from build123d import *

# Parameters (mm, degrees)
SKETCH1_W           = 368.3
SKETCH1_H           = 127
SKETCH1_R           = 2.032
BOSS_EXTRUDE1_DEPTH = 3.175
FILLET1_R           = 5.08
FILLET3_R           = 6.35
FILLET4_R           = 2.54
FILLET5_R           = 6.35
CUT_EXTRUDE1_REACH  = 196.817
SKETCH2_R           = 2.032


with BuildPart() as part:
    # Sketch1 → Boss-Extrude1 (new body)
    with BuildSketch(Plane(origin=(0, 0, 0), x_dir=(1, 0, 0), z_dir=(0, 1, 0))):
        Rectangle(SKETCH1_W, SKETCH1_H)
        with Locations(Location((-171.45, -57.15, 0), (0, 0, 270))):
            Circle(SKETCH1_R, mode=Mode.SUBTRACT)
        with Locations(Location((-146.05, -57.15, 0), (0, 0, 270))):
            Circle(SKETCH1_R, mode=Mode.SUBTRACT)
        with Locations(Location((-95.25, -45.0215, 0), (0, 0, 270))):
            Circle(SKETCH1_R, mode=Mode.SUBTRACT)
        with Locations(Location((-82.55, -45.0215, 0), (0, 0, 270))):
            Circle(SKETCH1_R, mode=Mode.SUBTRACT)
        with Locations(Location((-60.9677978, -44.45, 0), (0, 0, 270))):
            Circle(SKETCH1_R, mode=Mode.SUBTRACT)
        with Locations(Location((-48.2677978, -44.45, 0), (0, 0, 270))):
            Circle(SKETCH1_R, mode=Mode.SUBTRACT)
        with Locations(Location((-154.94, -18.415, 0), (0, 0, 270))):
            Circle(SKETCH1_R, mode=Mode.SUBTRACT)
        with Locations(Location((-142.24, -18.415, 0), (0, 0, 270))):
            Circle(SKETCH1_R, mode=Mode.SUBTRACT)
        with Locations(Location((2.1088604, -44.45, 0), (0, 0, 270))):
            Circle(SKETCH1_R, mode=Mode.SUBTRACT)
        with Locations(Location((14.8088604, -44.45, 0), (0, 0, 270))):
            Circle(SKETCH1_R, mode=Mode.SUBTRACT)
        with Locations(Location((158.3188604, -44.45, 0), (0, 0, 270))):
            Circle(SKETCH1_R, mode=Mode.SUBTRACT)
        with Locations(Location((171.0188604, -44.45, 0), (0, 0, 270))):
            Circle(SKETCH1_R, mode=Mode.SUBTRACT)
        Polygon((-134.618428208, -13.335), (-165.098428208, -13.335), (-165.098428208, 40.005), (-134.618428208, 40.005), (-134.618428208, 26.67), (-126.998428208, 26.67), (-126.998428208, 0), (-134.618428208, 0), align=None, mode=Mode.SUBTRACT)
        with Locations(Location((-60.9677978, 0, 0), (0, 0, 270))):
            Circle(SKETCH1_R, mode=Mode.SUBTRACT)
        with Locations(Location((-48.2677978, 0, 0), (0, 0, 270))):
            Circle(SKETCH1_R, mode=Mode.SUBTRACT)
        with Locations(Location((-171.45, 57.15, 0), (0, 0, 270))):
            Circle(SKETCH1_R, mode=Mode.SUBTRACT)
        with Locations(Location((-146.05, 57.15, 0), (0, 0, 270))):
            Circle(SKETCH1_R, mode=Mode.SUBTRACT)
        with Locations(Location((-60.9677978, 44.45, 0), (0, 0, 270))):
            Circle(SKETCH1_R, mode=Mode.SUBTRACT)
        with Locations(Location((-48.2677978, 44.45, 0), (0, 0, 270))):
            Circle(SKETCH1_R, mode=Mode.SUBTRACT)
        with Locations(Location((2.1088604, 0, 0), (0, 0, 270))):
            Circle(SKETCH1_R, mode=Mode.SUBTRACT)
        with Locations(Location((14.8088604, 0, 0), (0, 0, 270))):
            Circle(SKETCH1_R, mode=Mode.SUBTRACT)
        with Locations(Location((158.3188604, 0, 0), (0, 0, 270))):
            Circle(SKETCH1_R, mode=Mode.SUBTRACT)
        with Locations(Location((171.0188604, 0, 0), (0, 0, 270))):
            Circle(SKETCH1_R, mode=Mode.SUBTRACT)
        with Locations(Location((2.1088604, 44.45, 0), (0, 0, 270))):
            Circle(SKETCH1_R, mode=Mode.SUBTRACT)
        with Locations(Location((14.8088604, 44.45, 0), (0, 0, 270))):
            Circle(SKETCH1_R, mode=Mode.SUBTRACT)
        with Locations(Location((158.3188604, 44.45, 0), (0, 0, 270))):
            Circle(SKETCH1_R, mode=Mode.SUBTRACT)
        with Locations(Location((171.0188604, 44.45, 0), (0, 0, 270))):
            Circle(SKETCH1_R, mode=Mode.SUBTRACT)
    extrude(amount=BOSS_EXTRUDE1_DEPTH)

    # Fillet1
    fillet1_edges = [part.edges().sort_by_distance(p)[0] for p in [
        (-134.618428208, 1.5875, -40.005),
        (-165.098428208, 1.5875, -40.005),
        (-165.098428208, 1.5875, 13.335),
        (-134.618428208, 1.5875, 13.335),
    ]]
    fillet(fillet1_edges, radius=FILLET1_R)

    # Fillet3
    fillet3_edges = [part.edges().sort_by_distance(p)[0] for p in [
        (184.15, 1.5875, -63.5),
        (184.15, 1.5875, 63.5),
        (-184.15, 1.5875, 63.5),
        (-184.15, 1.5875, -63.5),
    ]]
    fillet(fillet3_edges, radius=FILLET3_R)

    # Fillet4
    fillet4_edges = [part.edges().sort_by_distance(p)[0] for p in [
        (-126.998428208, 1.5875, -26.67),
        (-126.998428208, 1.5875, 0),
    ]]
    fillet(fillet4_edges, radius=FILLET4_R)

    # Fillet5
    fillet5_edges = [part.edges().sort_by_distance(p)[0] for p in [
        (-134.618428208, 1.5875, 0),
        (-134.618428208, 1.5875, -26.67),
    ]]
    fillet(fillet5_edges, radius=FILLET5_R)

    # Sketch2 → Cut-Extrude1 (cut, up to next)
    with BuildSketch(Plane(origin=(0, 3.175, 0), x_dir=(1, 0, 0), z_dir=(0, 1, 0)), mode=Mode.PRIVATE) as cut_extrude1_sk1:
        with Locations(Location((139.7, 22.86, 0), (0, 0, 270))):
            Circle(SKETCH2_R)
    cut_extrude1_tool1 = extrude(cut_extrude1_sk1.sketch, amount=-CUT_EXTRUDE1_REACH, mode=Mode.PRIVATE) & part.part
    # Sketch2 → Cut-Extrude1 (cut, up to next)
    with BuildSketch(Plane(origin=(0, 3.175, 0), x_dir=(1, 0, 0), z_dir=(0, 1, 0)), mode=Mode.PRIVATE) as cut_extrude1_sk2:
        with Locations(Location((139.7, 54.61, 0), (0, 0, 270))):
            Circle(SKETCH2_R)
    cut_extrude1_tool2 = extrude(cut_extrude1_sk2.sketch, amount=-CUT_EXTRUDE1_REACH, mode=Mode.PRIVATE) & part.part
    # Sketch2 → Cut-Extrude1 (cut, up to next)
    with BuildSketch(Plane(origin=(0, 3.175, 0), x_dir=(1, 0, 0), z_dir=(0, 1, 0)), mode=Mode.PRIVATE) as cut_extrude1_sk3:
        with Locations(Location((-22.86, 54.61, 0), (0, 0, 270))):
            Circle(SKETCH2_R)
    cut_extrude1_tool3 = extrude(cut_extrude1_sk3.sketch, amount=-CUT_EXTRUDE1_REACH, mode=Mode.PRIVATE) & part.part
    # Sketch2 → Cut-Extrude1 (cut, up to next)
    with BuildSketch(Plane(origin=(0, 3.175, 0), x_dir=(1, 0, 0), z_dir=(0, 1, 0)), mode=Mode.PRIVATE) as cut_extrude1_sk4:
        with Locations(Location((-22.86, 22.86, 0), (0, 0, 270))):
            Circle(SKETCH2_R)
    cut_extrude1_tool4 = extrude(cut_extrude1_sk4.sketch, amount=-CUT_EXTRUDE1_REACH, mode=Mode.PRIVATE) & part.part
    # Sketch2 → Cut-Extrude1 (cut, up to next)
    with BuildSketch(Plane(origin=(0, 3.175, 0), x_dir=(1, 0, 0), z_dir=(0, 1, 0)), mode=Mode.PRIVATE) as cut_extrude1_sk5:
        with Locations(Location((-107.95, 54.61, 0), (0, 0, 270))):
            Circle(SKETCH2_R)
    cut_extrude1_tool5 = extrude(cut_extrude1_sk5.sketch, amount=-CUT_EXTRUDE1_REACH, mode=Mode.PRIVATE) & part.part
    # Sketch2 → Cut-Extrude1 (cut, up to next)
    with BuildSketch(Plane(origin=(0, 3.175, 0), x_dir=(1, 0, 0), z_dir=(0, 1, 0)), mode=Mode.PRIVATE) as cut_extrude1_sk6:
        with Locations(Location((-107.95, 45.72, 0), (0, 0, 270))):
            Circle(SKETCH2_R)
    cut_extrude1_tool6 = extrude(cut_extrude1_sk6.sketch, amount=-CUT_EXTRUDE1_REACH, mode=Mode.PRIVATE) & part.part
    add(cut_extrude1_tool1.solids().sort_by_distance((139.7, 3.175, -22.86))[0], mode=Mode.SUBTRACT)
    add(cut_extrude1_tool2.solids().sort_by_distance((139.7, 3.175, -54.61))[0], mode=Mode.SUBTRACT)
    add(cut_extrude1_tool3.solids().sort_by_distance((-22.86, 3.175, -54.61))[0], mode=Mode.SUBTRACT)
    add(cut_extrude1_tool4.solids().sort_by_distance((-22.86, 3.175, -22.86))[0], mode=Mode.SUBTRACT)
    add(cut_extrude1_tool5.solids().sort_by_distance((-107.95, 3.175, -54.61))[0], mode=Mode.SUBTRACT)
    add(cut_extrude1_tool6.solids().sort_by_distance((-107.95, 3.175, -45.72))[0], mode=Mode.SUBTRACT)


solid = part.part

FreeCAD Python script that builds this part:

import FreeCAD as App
import Part
import Sketcher
Q = App.Units.Quantity


def edges_at(feature, points):
    """Names of the edges that pass closest to the given points."""
    edges = feature.Shape.Edges
    near = lambda p: min(range(len(edges)), key=lambda i: edges[i].distToShape(Part.Vertex(*p))[0])
    return sorted({f"Edge{near(p) + 1}" for p in points})


def add_polygon(sketch, points):
    """Adds a closed chain of lines whose ends are joined by coincident constraints."""
    first, n = sketch.GeometryCount, len(points)
    for a, b in zip(points, points[1:] + points[:1]):
        sketch.addGeometry(Part.LineSegment(App.Vector(*a, 0), App.Vector(*b, 0)), False)
    for i in range(n):
        sketch.addConstraint(Sketcher.Constraint("Coincident", first + i, 2, first + (i + 1) % n, 1))

doc = App.newDocument("Part")
body = doc.addObject("PartDesign::Body", "Body")

sketch1 = body.newObject("Sketcher::SketchObject", "Sketch")
sketch1.AttachmentSupport = (doc.getObject("XZ_Plane"), [""])
sketch1.MapMode = "FlatFace"
add_polygon(sketch1, [(-184.15, -63.5), (-184.15, 63.5), (184.15, 63.5), (184.15, -63.5)])
sketch1.addGeometry(Part.Circle(App.Vector(-171.45, 57.15, 0), App.Vector(0, 0, 1), 2.032), False)
sketch1.addGeometry(Part.Circle(App.Vector(-146.05, 57.15, 0), App.Vector(0, 0, 1), 2.032), False)
sketch1.addGeometry(Part.Circle(App.Vector(-95.25, 45.0215, 0), App.Vector(0, 0, 1), 2.032), False)
sketch1.addGeometry(Part.Circle(App.Vector(-82.55, 45.0215, 0), App.Vector(0, 0, 1), 2.032), False)
sketch1.addGeometry(Part.Circle(App.Vector(-60.967798, 44.45, 0), App.Vector(0, 0, 1), 2.032), False)
sketch1.addGeometry(Part.Circle(App.Vector(-48.267798, 44.45, 0), App.Vector(0, 0, 1), 2.032), False)
sketch1.addGeometry(Part.Circle(App.Vector(-154.94, 18.415, 0), App.Vector(0, 0, 1), 2.032), False)
sketch1.addGeometry(Part.Circle(App.Vector(-142.24, 18.415, 0), App.Vector(0, 0, 1), 2.032), False)
sketch1.addGeometry(Part.Circle(App.Vector(2.10886, 44.45, 0), App.Vector(0, 0, 1), 2.032), False)
sketch1.addGeometry(Part.Circle(App.Vector(14.80886, 44.45, 0), App.Vector(0, 0, 1), 2.032), False)
sketch1.addGeometry(Part.Circle(App.Vector(158.31886, 44.45, 0), App.Vector(0, 0, 1), 2.032), False)
sketch1.addGeometry(Part.Circle(App.Vector(171.01886, 44.45, 0), App.Vector(0, 0, 1), 2.032), False)
add_polygon(sketch1, [(-134.618428, 0), (-134.618428, 13.335), (-165.098428, 13.335), (-165.098428, -40.005), (-134.618428, -40.005), (-134.618428, -26.67), (-126.998428, -26.67), (-126.998428, 0)])
sketch1.addGeometry(Part.Circle(App.Vector(-60.967798, 0, 0), App.Vector(0, 0, 1), 2.032), False)
sketch1.addGeometry(Part.Circle(App.Vector(-48.267798, 0, 0), App.Vector(0, 0, 1), 2.032), False)
sketch1.addGeometry(Part.Circle(App.Vector(-171.45, -57.15, 0), App.Vector(0, 0, 1), 2.032), False)
sketch1.addGeometry(Part.Circle(App.Vector(-146.05, -57.15, 0), App.Vector(0, 0, 1), 2.032), False)
sketch1.addGeometry(Part.Circle(App.Vector(-60.967798, -44.45, 0), App.Vector(0, 0, 1), 2.032), False)
sketch1.addGeometry(Part.Circle(App.Vector(-48.267798, -44.45, 0), App.Vector(0, 0, 1), 2.032), False)
sketch1.addGeometry(Part.Circle(App.Vector(2.10886, 0, 0), App.Vector(0, 0, 1), 2.032), False)
sketch1.addGeometry(Part.Circle(App.Vector(14.80886, 0, 0), App.Vector(0, 0, 1), 2.032), False)
sketch1.addGeometry(Part.Circle(App.Vector(158.31886, 0, 0), App.Vector(0, 0, 1), 2.032), False)
sketch1.addGeometry(Part.Circle(App.Vector(171.01886, 0, 0), App.Vector(0, 0, 1), 2.032), False)
sketch1.addGeometry(Part.Circle(App.Vector(2.10886, -44.45, 0), App.Vector(0, 0, 1), 2.032), False)
sketch1.addGeometry(Part.Circle(App.Vector(14.80886, -44.45, 0), App.Vector(0, 0, 1), 2.032), False)
sketch1.addGeometry(Part.Circle(App.Vector(158.31886, -44.45, 0), App.Vector(0, 0, 1), 2.032), False)
sketch1.addGeometry(Part.Circle(App.Vector(171.01886, -44.45, 0), App.Vector(0, 0, 1), 2.032), False)
sketch1.addConstraint([
    Sketcher.Constraint("Vertical", 0),
    Sketcher.Constraint("Horizontal", 1),
    Sketcher.Constraint("Vertical", 2),
    Sketcher.Constraint("Horizontal", 3),
    Sketcher.Constraint("Vertical", 16),
    Sketcher.Constraint("Horizontal", 17),
    Sketcher.Constraint("Vertical", 18),
    Sketcher.Constraint("Horizontal", 19),
    Sketcher.Constraint("Vertical", 20),
    Sketcher.Constraint("Horizontal", 21),
    Sketcher.Constraint("Vertical", 22),
    Sketcher.Constraint("Horizontal", 23),
    Sketcher.Constraint("Equal", 4, 5),
    Sketcher.Constraint("Equal", 5, 6),
    Sketcher.Constraint("Equal", 6, 7),
    Sketcher.Constraint("Equal", 7, 8),
    Sketcher.Constraint("Equal", 8, 9),
    Sketcher.Constraint("Equal", 9, 10),
    Sketcher.Constraint("Equal", 10, 11),
    Sketcher.Constraint("Equal", 11, 12),
    Sketcher.Constraint("Equal", 12, 13),
    Sketcher.Constraint("Equal", 13, 14),
    Sketcher.Constraint("Equal", 14, 15),
    Sketcher.Constraint("Equal", 15, 24),
    Sketcher.Constraint("Equal", 24, 25),
    Sketcher.Constraint("Equal", 25, 26),
    Sketcher.Constraint("Equal", 26, 27),
    Sketcher.Constraint("Equal", 27, 28),
    Sketcher.Constraint("Equal", 28, 29),
    Sketcher.Constraint("Equal", 29, 30),
    Sketcher.Constraint("Equal", 30, 31),
    Sketcher.Constraint("Equal", 31, 32),
    Sketcher.Constraint("Equal", 32, 33),
    Sketcher.Constraint("Equal", 33, 34),
    Sketcher.Constraint("Equal", 34, 35),
    Sketcher.Constraint("Equal", 35, 36),
    Sketcher.Constraint("Equal", 36, 37),
    Sketcher.Constraint("Symmetric", 0, 2, 2, 2, -1, 1),
    Sketcher.Constraint("Symmetric", 4, 3, 26, 3, -1),
    Sketcher.Constraint("Symmetric", 5, 3, 27, 3, -1),
    Sketcher.Constraint("Symmetric", 8, 3, 28, 3, -1),
    Sketcher.Constraint("Symmetric", 9, 3, 29, 3, -1),
    Sketcher.Constraint("Symmetric", 12, 3, 34, 3, -1),
    Sketcher.Constraint("Symmetric", 13, 3, 35, 3, -1),
    Sketcher.Constraint("Symmetric", 14, 3, 36, 3, -1),
    Sketcher.Constraint("Symmetric", 15, 3, 37, 3, -1),
    Sketcher.Constraint("PointOnObject", 24, 3, -1),
    Sketcher.Constraint("PointOnObject", 25, 3, -1),
    Sketcher.Constraint("PointOnObject", 30, 3, -1),
    Sketcher.Constraint("PointOnObject", 31, 3, -1),
    Sketcher.Constraint("PointOnObject", 32, 3, -1),
    Sketcher.Constraint("PointOnObject", 33, 3, -1),
    Sketcher.Constraint("PointOnObject", 22, 2, -1),
    Sketcher.Constraint("Horizontal", 4, 3, 5, 3),
    Sketcher.Constraint("Horizontal", 6, 3, 7, 3),
    Sketcher.Constraint("Horizontal", 8, 3, 9, 3),
    Sketcher.Constraint("Horizontal", 10, 3, 11, 3),
    Sketcher.Constraint("Horizontal", 9, 3, 12, 3),
    Sketcher.Constraint("Horizontal", 12, 3, 13, 3),
    Sketcher.Constraint("Horizontal", 13, 3, 14, 3),
    Sketcher.Constraint("Horizontal", 14, 3, 15, 3),
    Sketcher.Constraint("Vertical", 8, 3, 24, 3),
    Sketcher.Constraint("Vertical", 9, 3, 25, 3),
    Sketcher.Constraint("Vertical", 12, 3, 30, 3),
    Sketcher.Constraint("Vertical", 13, 3, 31, 3),
    Sketcher.Constraint("Vertical", 14, 3, 32, 3),
    Sketcher.Constraint("Vertical", 15, 3, 33, 3),
    Sketcher.Constraint("Vertical", 16, 2, 19, 2),
    Sketcher.Constraint("Equal", 16, 20),
    Sketcher.Constraint("Diameter", 4, Q("0.16 in")),
    Sketcher.Constraint("DistanceY", 0, 1, 0, 2, Q("5 in")),
    Sketcher.Constraint("DistanceX", 1, 1, 1, 2, Q("14.5 in")),
    Sketcher.Constraint("DistanceX", 17, 2, 17, 1, Q("1.2 in")),
    Sketcher.Constraint("DistanceX", 21, 1, 21, 2, Q("0.3 in")),
    Sketcher.Constraint("DistanceY", 18, 2, 18, 1, Q("2.1 in")),
    Sketcher.Constraint("DistanceX", 4, 3, 5, 3, Q("1 in")),
    Sketcher.Constraint("DistanceX", 5, 3, 6, 3, Q("2 in")),
    Sketcher.Constraint("DistanceY", 22, 1, 22, 2, Q("1.05 in")),
    Sketcher.Constraint("DistanceX", 10, 3, -1, 1, Q("6.1 in")),
    Sketcher.Constraint("DistanceX", 11, 3, -1, 1, Q("5.6 in")),
    Sketcher.Constraint("DistanceX", 6, 3, 7, 3, Q("0.5 in")),
    Sketcher.Constraint("DistanceY", 8, 3, 5, 3, Q("0.5 in")),
    Sketcher.Constraint("DistanceX", 8, 3, 9, 3, Q("0.5 in")),
    Sketcher.Constraint("DistanceX", 12, 3, 13, 3, Q("0.5 in")),
    Sketcher.Constraint("DistanceX", 14, 3, 15, 3, Q("0.5 in")),
    Sketcher.Constraint("DistanceY", 26, 3, 4, 3, Q("4.5 in")),
    Sketcher.Constraint("DistanceX", 0, 2, 4, 3, Q("0.5 in")),
    Sketcher.Constraint("DistanceY", 16, 2, 11, 3, Q("0.2 in")),
    Sketcher.Constraint("DistanceX", 13, 3, 14, 3, Q("5.65 in")),
    Sketcher.Constraint("DistanceY", -1, 1, 6, 3, Q("1.7725 in")),
    Sketcher.Constraint("DistanceX", -1, 1, 12, 3, Q("2.10886 mm")),
    Sketcher.Constraint("DistanceX", 16, 2, -1, 1, Q("134.618428 mm")),
    Sketcher.Constraint("DistanceX", 9, 3, 12, 3, Q("50.376658 mm")),
])
pad1 = body.newObject("PartDesign::Pad", "Pad")
pad1.Profile = sketch1
pad1.Length = Q("0.125 in")
pad1.Reversed = True
doc.recompute()

fillet = body.newObject("PartDesign::Fillet", "Fillet")
fillet.Base = (pad1, edges_at(pad1, [
    (-134.618, 1.587, -40.005),
    (-165.098, 1.587, -40.005),
    (-165.098, 1.587, 13.335),
    (-134.618, 1.587, 13.335),
]))
fillet.Radius = Q("0.2 in")
doc.recompute()

fillet2 = body.newObject("PartDesign::Fillet", "Fillet001")
fillet2.Base = (fillet, edges_at(fillet, [
    (184.15, 1.587, -63.5),
    (184.15, 1.587, 63.5),
    (-184.15, 1.587, 63.5),
    (-184.15, 1.587, -63.5),
]))
fillet2.Radius = Q("0.25 in")
doc.recompute()

fillet3 = body.newObject("PartDesign::Fillet", "Fillet002")
fillet3.Base = (fillet2, edges_at(fillet2, [(-126.998, 1.587, -26.67), (-126.998, 1.587, 0)]))
fillet3.Radius = Q("0.1 in")
doc.recompute()

fillet4 = body.newObject("PartDesign::Fillet", "Fillet003")
fillet4.Base = (fillet3, edges_at(fillet3, [(-134.618, 1.587, 0), (-134.618, 1.587, -26.67)]))
fillet4.Radius = Q("0.25 in")

sketch2 = body.newObject("Sketcher::SketchObject", "Sketch001")
sketch2.AttachmentSupport = (doc.getObject("XZ_Plane"), [""])
sketch2.MapMode = "FlatFace"
sketch2.AttachmentOffset = App.Placement(App.Vector(0, 0, -0.125 * 25.4), App.Rotation())
sketch2.addGeometry(Part.Circle(App.Vector(139.7, -22.86, 0), App.Vector(0, 0, 1), 2.032), False)
sketch2.addConstraint([
    Sketcher.Constraint("Diameter", 0, Q("0.16 in")),
    Sketcher.Constraint("DistanceX", -1, 1, 0, 3, Q("5.5 in")),
    Sketcher.Constraint("DistanceY", 0, 3, -1, 1, Q("0.9 in")),
])
pocket1 = body.newObject("PartDesign::Pocket", "Pocket")
pocket1.Profile = sketch2
pocket1.Type = "UpToFirst"
pocket1.Reversed = True

sketch3 = body.newObject("Sketcher::SketchObject", "Sketch002")
sketch3.AttachmentSupport = (doc.getObject("XZ_Plane"), [""])
sketch3.MapMode = "FlatFace"
sketch3.AttachmentOffset = App.Placement(App.Vector(0, 0, -0.125 * 25.4), App.Rotation())
sketch3.addGeometry(Part.Circle(App.Vector(139.7, -54.61, 0), App.Vector(0, 0, 1), 2.032), False)
sketch3.addConstraint([
    Sketcher.Constraint("Diameter", 0, Q("0.16 in")),
    Sketcher.Constraint("DistanceX", -1, 1, 0, 3, Q("5.5 in")),
    Sketcher.Constraint("DistanceY", 0, 3, -1, 1, Q("2.15 in")),
])
pocket2 = body.newObject("PartDesign::Pocket", "Pocket001")
pocket2.Profile = sketch3
pocket2.Type = "UpToFirst"
pocket2.Reversed = True

sketch4 = body.newObject("Sketcher::SketchObject", "Sketch003")
sketch4.AttachmentSupport = (doc.getObject("XZ_Plane"), [""])
sketch4.MapMode = "FlatFace"
sketch4.AttachmentOffset = App.Placement(App.Vector(0, 0, -0.125 * 25.4), App.Rotation())
sketch4.addGeometry(Part.Circle(App.Vector(-22.86, -54.61, 0), App.Vector(0, 0, 1), 2.032), False)
sketch4.addConstraint([
    Sketcher.Constraint("Diameter", 0, Q("0.16 in")),
    Sketcher.Constraint("DistanceX", 0, 3, -1, 1, Q("0.9 in")),
    Sketcher.Constraint("DistanceY", 0, 3, -1, 1, Q("2.15 in")),
])
pocket3 = body.newObject("PartDesign::Pocket", "Pocket002")
pocket3.Profile = sketch4
pocket3.Type = "UpToFirst"
pocket3.Reversed = True

sketch5 = body.newObject("Sketcher::SketchObject", "Sketch004")
sketch5.AttachmentSupport = (doc.getObject("XZ_Plane"), [""])
sketch5.MapMode = "FlatFace"
sketch5.AttachmentOffset = App.Placement(App.Vector(0, 0, -0.125 * 25.4), App.Rotation())
sketch5.addGeometry(Part.Circle(App.Vector(-22.86, -22.86, 0), App.Vector(0, 0, 1), 2.032), False)
sketch5.addConstraint([
    Sketcher.Constraint("Diameter", 0, Q("0.16 in")),
    Sketcher.Constraint("DistanceX", 0, 3, -1, 1, Q("0.9 in")),
    Sketcher.Constraint("DistanceY", 0, 3, -1, 1, Q("0.9 in")),
])
pocket4 = body.newObject("PartDesign::Pocket", "Pocket003")
pocket4.Profile = sketch5
pocket4.Type = "UpToFirst"
pocket4.Reversed = True

sketch6 = body.newObject("Sketcher::SketchObject", "Sketch005")
sketch6.AttachmentSupport = (doc.getObject("XZ_Plane"), [""])
sketch6.MapMode = "FlatFace"
sketch6.AttachmentOffset = App.Placement(App.Vector(0, 0, -0.125 * 25.4), App.Rotation())
sketch6.addGeometry(Part.Circle(App.Vector(-107.95, -54.61, 0), App.Vector(0, 0, 1), 2.032), False)
sketch6.addConstraint([
    Sketcher.Constraint("Diameter", 0, Q("0.16 in")),
    Sketcher.Constraint("DistanceX", 0, 3, -1, 1, Q("4.25 in")),
    Sketcher.Constraint("DistanceY", 0, 3, -1, 1, Q("2.15 in")),
])
pocket5 = body.newObject("PartDesign::Pocket", "Pocket004")
pocket5.Profile = sketch6
pocket5.Type = "UpToFirst"
pocket5.Reversed = True

sketch7 = body.newObject("Sketcher::SketchObject", "Sketch006")
sketch7.AttachmentSupport = (doc.getObject("XZ_Plane"), [""])
sketch7.MapMode = "FlatFace"
sketch7.AttachmentOffset = App.Placement(App.Vector(0, 0, -0.125 * 25.4), App.Rotation())
sketch7.addGeometry(Part.Circle(App.Vector(-107.95, -45.72, 0), App.Vector(0, 0, 1), 2.032), False)
sketch7.addConstraint([
    Sketcher.Constraint("Diameter", 0, Q("0.16 in")),
    Sketcher.Constraint("DistanceY", 0, 3, -1, 1, Q("1.8 in")),
    Sketcher.Constraint("DistanceX", 0, 3, -1, 1, Q("4.25 in")),
])
pocket6 = body.newObject("PartDesign::Pocket", "Pocket005")
pocket6.Profile = sketch7
pocket6.Type = "UpToFirst"
pocket6.Reversed = True

doc.recompute()
